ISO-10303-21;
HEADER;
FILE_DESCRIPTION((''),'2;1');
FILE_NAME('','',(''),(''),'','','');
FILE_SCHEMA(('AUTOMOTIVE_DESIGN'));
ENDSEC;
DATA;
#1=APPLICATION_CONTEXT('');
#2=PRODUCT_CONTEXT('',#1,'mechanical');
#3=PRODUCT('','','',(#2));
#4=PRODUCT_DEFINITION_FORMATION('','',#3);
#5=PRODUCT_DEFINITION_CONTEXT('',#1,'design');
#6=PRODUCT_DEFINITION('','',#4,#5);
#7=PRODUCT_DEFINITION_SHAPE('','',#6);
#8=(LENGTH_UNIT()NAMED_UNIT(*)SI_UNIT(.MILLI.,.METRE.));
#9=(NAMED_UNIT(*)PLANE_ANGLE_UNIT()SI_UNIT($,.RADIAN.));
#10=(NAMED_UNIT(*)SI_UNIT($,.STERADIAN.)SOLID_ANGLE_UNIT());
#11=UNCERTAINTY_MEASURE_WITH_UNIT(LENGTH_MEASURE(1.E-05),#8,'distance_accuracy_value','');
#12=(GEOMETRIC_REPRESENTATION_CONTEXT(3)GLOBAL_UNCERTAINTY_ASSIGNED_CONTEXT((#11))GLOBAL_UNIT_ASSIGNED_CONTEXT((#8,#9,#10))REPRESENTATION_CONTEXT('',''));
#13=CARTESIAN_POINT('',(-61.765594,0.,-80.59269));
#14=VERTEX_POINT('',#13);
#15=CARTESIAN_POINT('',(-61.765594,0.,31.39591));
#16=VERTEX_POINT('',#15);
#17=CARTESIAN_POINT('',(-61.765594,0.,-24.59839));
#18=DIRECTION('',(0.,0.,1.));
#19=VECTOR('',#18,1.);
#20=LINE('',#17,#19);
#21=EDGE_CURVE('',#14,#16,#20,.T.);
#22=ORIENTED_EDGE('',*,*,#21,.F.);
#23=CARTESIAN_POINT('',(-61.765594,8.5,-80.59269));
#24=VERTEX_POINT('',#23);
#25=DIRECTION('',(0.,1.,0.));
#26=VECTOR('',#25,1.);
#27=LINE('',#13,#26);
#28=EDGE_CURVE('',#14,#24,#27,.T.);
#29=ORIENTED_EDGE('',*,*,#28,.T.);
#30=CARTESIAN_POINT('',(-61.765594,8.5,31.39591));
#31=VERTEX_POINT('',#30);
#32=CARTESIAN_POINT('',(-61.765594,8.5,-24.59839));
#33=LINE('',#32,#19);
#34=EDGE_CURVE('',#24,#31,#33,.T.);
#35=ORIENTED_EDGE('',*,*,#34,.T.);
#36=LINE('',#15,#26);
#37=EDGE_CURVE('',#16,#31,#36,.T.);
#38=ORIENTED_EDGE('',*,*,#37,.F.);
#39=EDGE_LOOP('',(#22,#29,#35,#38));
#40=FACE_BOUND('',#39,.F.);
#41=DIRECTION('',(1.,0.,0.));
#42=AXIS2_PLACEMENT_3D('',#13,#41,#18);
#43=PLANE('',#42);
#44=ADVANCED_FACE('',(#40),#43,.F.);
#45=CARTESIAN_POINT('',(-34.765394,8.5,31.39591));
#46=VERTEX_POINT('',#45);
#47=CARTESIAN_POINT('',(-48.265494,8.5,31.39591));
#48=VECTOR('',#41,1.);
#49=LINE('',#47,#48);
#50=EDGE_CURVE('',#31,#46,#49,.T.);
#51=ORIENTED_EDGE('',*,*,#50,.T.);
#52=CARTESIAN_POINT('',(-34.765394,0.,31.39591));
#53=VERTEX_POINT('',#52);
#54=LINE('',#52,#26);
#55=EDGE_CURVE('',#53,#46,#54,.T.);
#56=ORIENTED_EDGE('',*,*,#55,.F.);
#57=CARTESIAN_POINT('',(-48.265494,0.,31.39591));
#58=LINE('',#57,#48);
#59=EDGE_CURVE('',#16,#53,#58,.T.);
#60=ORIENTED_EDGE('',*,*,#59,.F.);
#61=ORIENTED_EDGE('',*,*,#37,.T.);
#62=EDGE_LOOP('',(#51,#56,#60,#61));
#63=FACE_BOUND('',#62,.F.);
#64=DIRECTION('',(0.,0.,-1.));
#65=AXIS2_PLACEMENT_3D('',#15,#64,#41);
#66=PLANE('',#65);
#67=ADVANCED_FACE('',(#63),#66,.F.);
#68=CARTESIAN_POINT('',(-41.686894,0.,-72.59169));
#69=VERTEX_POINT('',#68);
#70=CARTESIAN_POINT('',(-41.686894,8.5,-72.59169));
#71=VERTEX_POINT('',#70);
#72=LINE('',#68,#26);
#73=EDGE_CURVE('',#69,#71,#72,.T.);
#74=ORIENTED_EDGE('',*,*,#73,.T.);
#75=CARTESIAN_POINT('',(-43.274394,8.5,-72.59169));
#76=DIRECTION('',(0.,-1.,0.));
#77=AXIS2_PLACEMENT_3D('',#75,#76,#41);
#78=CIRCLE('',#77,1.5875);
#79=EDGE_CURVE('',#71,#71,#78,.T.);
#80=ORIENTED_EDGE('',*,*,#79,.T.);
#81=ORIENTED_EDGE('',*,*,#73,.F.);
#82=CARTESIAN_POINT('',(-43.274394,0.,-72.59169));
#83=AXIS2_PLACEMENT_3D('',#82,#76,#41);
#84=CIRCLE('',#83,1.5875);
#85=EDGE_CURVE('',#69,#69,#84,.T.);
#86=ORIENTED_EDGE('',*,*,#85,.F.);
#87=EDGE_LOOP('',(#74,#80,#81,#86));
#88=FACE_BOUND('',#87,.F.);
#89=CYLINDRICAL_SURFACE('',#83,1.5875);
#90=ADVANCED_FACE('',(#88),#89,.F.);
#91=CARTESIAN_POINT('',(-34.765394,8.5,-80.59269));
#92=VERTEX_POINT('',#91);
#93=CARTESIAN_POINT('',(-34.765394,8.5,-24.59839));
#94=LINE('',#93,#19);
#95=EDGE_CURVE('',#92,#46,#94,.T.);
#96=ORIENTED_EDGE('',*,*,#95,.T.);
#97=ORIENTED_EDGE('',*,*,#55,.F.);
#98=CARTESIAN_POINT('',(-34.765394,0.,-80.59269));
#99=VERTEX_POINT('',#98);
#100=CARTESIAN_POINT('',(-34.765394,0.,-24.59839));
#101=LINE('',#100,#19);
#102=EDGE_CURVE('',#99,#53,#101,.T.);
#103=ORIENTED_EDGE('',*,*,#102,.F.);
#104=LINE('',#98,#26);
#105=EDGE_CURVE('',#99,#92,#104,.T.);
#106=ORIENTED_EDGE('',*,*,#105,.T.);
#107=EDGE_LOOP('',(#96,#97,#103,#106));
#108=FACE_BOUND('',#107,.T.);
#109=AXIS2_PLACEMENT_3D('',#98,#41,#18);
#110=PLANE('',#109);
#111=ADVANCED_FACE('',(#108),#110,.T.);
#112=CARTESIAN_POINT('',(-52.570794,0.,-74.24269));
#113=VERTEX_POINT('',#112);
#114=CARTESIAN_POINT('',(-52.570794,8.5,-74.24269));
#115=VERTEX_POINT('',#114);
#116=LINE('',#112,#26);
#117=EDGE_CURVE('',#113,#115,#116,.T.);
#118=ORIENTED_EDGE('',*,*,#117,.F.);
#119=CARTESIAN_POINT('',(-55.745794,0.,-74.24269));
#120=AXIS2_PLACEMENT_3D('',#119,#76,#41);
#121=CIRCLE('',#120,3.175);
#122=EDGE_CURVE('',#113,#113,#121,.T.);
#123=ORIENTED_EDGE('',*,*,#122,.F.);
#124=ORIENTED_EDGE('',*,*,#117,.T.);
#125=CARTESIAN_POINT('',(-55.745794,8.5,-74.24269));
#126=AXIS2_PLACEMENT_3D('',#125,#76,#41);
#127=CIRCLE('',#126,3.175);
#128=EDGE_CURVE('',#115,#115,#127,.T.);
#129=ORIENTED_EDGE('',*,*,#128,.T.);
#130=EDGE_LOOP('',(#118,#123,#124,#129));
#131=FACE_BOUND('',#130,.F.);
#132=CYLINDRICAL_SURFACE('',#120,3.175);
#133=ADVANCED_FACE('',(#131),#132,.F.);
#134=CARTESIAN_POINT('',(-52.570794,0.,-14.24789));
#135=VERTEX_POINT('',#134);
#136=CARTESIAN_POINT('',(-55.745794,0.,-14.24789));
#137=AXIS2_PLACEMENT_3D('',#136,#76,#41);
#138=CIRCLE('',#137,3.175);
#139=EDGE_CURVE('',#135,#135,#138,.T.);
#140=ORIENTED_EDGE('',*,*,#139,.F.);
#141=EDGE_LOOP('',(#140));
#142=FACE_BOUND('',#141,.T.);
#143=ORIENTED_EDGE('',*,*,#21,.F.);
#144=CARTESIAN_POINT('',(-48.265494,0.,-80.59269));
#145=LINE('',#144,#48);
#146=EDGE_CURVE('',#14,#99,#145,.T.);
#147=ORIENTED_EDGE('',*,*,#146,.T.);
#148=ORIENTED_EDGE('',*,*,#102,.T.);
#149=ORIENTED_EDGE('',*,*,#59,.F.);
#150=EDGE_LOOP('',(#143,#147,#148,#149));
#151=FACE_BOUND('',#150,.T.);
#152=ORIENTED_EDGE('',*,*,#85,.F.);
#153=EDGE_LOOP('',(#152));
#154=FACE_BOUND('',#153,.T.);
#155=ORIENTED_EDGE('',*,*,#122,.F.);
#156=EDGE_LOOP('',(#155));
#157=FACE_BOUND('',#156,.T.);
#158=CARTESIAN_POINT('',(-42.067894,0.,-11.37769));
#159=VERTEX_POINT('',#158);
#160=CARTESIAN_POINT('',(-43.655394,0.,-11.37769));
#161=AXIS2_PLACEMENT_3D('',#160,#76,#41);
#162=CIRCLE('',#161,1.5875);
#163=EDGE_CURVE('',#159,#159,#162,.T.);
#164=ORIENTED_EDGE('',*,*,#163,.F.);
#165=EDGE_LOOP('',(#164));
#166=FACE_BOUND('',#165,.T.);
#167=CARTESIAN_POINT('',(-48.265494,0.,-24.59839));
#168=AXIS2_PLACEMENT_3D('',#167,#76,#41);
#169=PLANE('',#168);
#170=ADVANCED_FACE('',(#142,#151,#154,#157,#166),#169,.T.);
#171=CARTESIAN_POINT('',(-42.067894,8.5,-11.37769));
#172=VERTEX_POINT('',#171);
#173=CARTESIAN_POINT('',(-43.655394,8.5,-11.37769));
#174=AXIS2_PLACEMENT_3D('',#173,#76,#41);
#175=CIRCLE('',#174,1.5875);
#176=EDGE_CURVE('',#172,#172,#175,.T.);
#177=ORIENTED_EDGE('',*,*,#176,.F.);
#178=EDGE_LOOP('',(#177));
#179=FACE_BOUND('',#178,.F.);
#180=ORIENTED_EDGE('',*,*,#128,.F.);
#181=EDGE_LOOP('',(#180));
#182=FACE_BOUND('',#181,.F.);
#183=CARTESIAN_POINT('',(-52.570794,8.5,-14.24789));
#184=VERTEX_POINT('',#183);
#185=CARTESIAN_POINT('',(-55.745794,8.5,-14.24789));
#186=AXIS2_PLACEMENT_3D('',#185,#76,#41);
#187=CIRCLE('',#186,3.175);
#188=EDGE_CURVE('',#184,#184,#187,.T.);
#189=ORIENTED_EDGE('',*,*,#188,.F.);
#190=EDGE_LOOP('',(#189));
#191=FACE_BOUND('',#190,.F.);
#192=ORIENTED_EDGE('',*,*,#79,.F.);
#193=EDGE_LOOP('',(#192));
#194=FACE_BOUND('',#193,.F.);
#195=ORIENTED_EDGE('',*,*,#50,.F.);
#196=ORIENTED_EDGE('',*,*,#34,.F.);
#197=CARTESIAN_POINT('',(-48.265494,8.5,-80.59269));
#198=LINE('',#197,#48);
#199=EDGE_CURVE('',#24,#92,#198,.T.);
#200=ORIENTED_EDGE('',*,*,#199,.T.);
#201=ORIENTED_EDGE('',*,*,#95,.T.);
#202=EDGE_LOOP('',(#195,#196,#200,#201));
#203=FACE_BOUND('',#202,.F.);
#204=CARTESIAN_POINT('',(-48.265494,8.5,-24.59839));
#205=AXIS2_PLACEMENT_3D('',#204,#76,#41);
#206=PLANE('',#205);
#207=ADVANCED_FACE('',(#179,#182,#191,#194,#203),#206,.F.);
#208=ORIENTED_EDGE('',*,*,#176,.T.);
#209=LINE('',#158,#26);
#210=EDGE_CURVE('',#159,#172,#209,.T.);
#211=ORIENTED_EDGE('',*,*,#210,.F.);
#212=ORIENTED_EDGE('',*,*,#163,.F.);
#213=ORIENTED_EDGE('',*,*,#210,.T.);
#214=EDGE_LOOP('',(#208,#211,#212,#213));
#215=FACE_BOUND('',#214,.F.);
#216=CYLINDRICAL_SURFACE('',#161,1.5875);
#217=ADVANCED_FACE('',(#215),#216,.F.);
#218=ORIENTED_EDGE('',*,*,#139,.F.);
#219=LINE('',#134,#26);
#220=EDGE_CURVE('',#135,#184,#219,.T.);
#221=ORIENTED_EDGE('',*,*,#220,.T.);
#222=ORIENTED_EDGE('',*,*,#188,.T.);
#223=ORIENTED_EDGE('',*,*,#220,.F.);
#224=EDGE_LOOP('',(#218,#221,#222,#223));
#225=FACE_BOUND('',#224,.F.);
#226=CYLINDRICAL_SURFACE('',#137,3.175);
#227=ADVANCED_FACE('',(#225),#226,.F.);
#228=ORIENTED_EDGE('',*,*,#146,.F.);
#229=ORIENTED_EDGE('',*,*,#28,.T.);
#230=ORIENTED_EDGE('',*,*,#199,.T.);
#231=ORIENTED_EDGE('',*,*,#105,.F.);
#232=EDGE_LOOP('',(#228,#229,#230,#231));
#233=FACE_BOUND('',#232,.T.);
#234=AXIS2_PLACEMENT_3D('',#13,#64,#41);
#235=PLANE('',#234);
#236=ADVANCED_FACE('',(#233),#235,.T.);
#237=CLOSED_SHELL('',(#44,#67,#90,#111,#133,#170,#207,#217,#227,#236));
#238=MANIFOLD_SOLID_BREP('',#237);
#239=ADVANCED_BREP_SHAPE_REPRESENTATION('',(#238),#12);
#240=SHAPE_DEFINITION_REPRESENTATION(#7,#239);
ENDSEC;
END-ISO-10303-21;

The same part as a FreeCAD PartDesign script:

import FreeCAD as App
import Part
import Sketcher
from FreeCAD import Vector
Q = App.Units.Quantity

doc = App.newDocument("Part")
body = doc.addObject("PartDesign::Body", "Body")

sketch1 = doc.addObject("Sketcher::SketchObject", "Sketch")
body.addObject(sketch1)
sketch1.AttachmentSupport = (doc.XZ_Plane, [""])
sketch1.MapMode = "FlatFace"
sketch1.addGeometry([
    Part.LineSegment(Vector(-61.765594, 31.39591, 0), Vector(-61.765594, -80.59269, 0)),
    Part.LineSegment(Vector(-61.765594, -80.59269, 0), Vector(-34.765394, -80.59269, 0)),
    Part.LineSegment(Vector(-34.765394, -80.59269, 0), Vector(-34.765394, 31.39591, 0)),
    Part.LineSegment(Vector(-34.765394, 31.39591, 0), Vector(-61.765594, 31.39591, 0)),
    Part.Circle(Vector(-55.745794, -74.24269, 0), Vector(0, 0, 1), 3.175),
    Part.Circle(Vector(-43.274394, -72.59169, 0), Vector(0, 0, 1), 1.5875),
    Part.Circle(Vector(-55.745794, -14.24789, 0), Vector(0, 0, 1), 3.175),
    Part.Circle(Vector(-43.655394, -11.37769, 0), Vector(0, 0, 1), 1.5875),
], False)
sketch1.addConstraint([
    Sketcher.Constraint("Coincident", 0, 2, 1, 1),
    Sketcher.Constraint("Coincident", 1, 2, 2, 1),
    Sketcher.Constraint("Coincident", 2, 2, 3, 1),
    Sketcher.Constraint("Coincident", 3, 2, 0, 1),
    Sketcher.Constraint("Vertical", 0),
    Sketcher.Constraint("Horizontal", 1),
    Sketcher.Constraint("Vertical", 2),
    Sketcher.Constraint("Horizontal", 3),
    Sketcher.Constraint("Equal", 4, 6),
    Sketcher.Constraint("Equal", 5, 7),
    Sketcher.Constraint("Vertical", 4, 3, 6, 3),
    Sketcher.Constraint("Diameter", 4, Q("0.25 in")),
    Sketcher.Constraint("Diameter", 5, Q("0.125 in")),
    Sketcher.Constraint("DistanceX", 1, 1, 1, 2, Q("1.063 in")),
    Sketcher.Constraint("DistanceY", 0, 2, 0, 1, Q("4.409 in")),
    Sketcher.Constraint("DistanceY", 5, 3, 7, 3, Q("2.41 in")),
    Sketcher.Constraint("DistanceY", 0, 2, 4, 3, Q("0.25 in")),
    Sketcher.Constraint("DistanceX", 7, 3, 1, 2, Q("0.35 in")),
    Sketcher.Constraint("DistanceX", 4, 3, 5, 3, Q("0.491 in")),
    Sketcher.Constraint("DistanceY", 4, 3, 5, 3, Q("0.065 in")),
    Sketcher.Constraint("DistanceY", 5, 3, 6, 3, Q("2.297 in")),
    Sketcher.Constraint("DistanceX", 6, 3, 7, 3, Q("0.476 in")),
    Sketcher.Constraint("DistanceY", 4, 3, -1, 1, Q("74.24269 mm")),
    Sketcher.Constraint("DistanceX", 4, 3, -1, 1, Q("55.745794 mm")),
])
pad1 = doc.addObject("PartDesign::Pad", "Pad")
body.addObject(pad1)
pad1.Profile = sketch1
pad1.Length = 8.5
pad1.Reversed = True

doc.recompute()
